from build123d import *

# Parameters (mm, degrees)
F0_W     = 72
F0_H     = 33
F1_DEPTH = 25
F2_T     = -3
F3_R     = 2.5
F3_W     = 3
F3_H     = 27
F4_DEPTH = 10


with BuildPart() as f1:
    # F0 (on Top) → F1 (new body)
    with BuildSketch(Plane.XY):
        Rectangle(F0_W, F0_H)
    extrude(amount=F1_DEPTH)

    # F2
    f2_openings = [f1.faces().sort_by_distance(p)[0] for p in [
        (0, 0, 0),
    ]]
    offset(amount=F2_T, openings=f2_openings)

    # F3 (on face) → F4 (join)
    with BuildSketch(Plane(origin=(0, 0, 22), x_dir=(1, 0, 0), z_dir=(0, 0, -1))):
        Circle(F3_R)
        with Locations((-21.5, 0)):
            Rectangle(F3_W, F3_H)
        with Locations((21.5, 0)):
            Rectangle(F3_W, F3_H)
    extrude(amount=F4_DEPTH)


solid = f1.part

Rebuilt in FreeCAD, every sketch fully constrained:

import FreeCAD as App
import Part
import Sketcher

V = App.Vector
Q = App.Units.Quantity


def faces_at(feature, points):
    """Names of the faces that lie closest to the given points."""
    faces = feature.Shape.Faces
    near = lambda p: min(range(len(faces)), key=lambda i: faces[i].distToShape(Part.Vertex(*p))[0])
    return sorted({f"Face{near(p) + 1}" for p in points})

doc = App.newDocument("Part")
body = doc.addObject("PartDesign::Body", "Body")

# Sketch on XY plane
sketch1 = body.newObject("Sketcher::SketchObject", "Sketch")
sketch1.AttachmentSupport = (doc.getObject("XY_Plane"), [""])
sketch1.MapMode = "FlatFace"
sketch1.addGeometry(Part.LineSegment(V(-36, 16.5, 0), V(-36, -16.5, 0)), False)
sketch1.addGeometry(Part.LineSegment(V(-36, -16.5, 0), V(36, -16.5, 0)), False)
sketch1.addGeometry(Part.LineSegment(V(36, -16.5, 0), V(36, 16.5, 0)), False)
sketch1.addGeometry(Part.LineSegment(V(36, 16.5, 0), V(-36, 16.5, 0)), False)
sketch1.addConstraint(Sketcher.Constraint("Coincident", 0, 2, 1, 1))
sketch1.addConstraint(Sketcher.Constraint("Coincident", 1, 2, 2, 1))
sketch1.addConstraint(Sketcher.Constraint("Coincident", 2, 2, 3, 1))
sketch1.addConstraint(Sketcher.Constraint("Coincident", 3, 2, 0, 1))
sketch1.addConstraint(Sketcher.Constraint("Vertical", 0))
sketch1.addConstraint(Sketcher.Constraint("Horizontal", 1))
sketch1.addConstraint(Sketcher.Constraint("Vertical", 2))
sketch1.addConstraint(Sketcher.Constraint("Horizontal", 3))
sketch1.addConstraint(Sketcher.Constraint("Symmetric", 0, 2, 2, 2, -1, 1))
sketch1.addConstraint(Sketcher.Constraint("DistanceX", 1, 1, 1, 2, Q("72 mm")))
sketch1.addConstraint(Sketcher.Constraint("DistanceY", 0, 2, 0, 1, Q("33 mm")))
pad1 = body.newObject("PartDesign::Pad", "Pad")
pad1.Profile = sketch1
pad1.Length = 25
doc.recompute()

thickness = body.newObject("PartDesign::Thickness", "Thickness")
thickness.Base = (pad1, faces_at(pad1, [(0, 0, 0)]))
thickness.Value = 3
thickness.Reversed = True
thickness.Join = "Arc"

# Sketch on XY plane
sketch2 = body.newObject("Sketcher::SketchObject", "Sketch001")
sketch2.AttachmentSupport = (doc.getObject("XY_Plane"), [""])
sketch2.MapMode = "FlatFace"
sketch2.AttachmentOffset = App.Placement(V(0, 0, 22), App.Rotation())
sketch2.addGeometry(Part.Circle(V(0, 0, 0), V(0, 0, 1), 2.5), False)
sketch2.addGeometry(Part.LineSegment(V(-23, -13.5, 0), V(-23, 13.5, 0)), False)
sketch2.addGeometry(Part.LineSegment(V(-23, 13.5, 0), V(-20, 13.5, 0)), False)
sketch2.addGeometry(Part.LineSegment(V(-20, 13.5, 0), V(-20, -13.5, 0)), False)
sketch2.addGeometry(Part.LineSegment(V(-20, -13.5, 0), V(-23, -13.5, 0)), False)
sketch2.addGeometry(Part.LineSegment(V(20, -13.5, 0), V(20, 13.5, 0)), False)
sketch2.addGeometry(Part.LineSegment(V(20, 13.5, 0), V(23, 13.5, 0)), False)
sketch2.addGeometry(Part.LineSegment(V(23, 13.5, 0), V(23, -13.5, 0)), False)
sketch2.addGeometry(Part.LineSegment(V(23, -13.5, 0), V(20, -13.5, 0)), False)
sketch2.addConstraint(Sketcher.Constraint("Coincident", 1, 2, 2, 1))
sketch2.addConstraint(Sketcher.Constraint("Coincident", 2, 2, 3, 1))
sketch2.addConstraint(Sketcher.Constraint("Coincident", 3, 2, 4, 1))
sketch2.addConstraint(Sketcher.Constraint("Coincident", 4, 2, 1, 1))
sketch2.addConstraint(Sketcher.Constraint("Coincident", 5, 2, 6, 1))
sketch2.addConstraint(Sketcher.Constraint("Coincident", 6, 2, 7, 1))
sketch2.addConstraint(Sketcher.Constraint("Coincident", 7, 2, 8, 1))
sketch2.addConstraint(Sketcher.Constraint("Coincident", 8, 2, 5, 1))
sketch2.addConstraint(Sketcher.Constraint("Vertical", 1))
sketch2.addConstraint(Sketcher.Constraint("Horizontal", 2))
sketch2.addConstraint(Sketcher.Constraint("Vertical", 3))
sketch2.addConstraint(Sketcher.Constraint("Horizontal", 4))
sketch2.addConstraint(Sketcher.Constraint("Vertical", 5))
sketch2.addConstraint(Sketcher.Constraint("Horizontal", 6))
sketch2.addConstraint(Sketcher.Constraint("Vertical", 7))
sketch2.addConstraint(Sketcher.Constraint("Horizontal", 8))
sketch2.addConstraint(Sketcher.Constraint("Coincident", 0, 3, -1, 1))
sketch2.addConstraint(Sketcher.Constraint("Symmetric", 3, 2, 5, 2, -1, 1))
sketch2.addConstraint(Sketcher.Constraint("Symmetric", 1, 2, 7, 2, -1, 1))
sketch2.addConstraint(Sketcher.Constraint("Horizontal", 2, 2, 5, 2))
sketch2.addConstraint(Sketcher.Constraint("Diameter", 0, Q("5 mm")))
sketch2.addConstraint(Sketcher.Constraint("DistanceX", 2, 1, 2, 2, Q("3 mm")))
sketch2.addConstraint(Sketcher.Constraint("DistanceY", 1, 1, 1, 2, Q("27 mm")))
sketch2.addConstraint(Sketcher.Constraint("DistanceX", 1, 2, -1, 1, Q("23 mm")))
pad2 = body.newObject("PartDesign::Pad", "Pad001")
pad2.Profile = sketch2
pad2.Length = 10
pad2.Reversed = True

doc.recompute()
